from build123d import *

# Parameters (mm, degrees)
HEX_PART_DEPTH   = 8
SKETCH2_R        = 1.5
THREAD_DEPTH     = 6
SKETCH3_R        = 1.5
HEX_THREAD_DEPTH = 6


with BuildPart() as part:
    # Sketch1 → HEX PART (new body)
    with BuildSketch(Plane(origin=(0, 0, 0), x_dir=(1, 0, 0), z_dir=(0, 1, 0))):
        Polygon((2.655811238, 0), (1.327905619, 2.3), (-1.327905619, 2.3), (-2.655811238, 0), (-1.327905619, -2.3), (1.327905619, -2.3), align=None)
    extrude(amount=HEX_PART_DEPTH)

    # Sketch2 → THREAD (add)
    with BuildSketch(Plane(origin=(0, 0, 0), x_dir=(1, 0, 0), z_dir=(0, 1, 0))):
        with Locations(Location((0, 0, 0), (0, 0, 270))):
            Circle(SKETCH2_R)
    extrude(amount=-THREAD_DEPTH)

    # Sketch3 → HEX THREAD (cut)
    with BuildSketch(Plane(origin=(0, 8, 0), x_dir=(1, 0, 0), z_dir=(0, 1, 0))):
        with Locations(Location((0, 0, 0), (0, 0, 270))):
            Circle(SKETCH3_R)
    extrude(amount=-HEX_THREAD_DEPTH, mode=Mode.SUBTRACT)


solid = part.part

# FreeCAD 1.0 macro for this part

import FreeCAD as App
import Part
import Sketcher
Q = App.Units.Quantity

doc = App.newDocument("Part")
body = doc.addObject("PartDesign::Body", "Body")

sketch1 = doc.addObject("Sketcher::SketchObject", "Sketch")
body.addObject(sketch1)
sketch1.AttachmentSupport = (doc.XZ_Plane, [""])
sketch1.MapMode = "FlatFace"
sketch1.addGeometry([
    Part.LineSegment(App.Vector(2.7, 0, 0), App.Vector(1.3, -2.3, 0)),
    Part.LineSegment(App.Vector(1.3, -2.3, 0), App.Vector(-1.3, -2.3, 0)),
    Part.LineSegment(App.Vector(-1.3, -2.3, 0), App.Vector(-2.7, 0, 0)),
    Part.LineSegment(App.Vector(-2.7, 0, 0), App.Vector(-1.3, 2.3, 0)),
    Part.LineSegment(App.Vector(-1.3, 2.3, 0), App.Vector(1.3, 2.3, 0)),
    Part.LineSegment(App.Vector(1.3, 2.3, 0), App.Vector(2.7, 0, 0)),
], False)
sketch1.addConstraint([
    Sketcher.Constraint("Coincident", 0, 2, 1, 1),
    Sketcher.Constraint("Coincident", 1, 2, 2, 1),
    Sketcher.Constraint("Coincident", 2, 2, 3, 1),
    Sketcher.Constraint("Coincident", 3, 2, 4, 1),
    Sketcher.Constraint("Coincident", 4, 2, 5, 1),
    Sketcher.Constraint("Coincident", 5, 2, 0, 1),
    Sketcher.Constraint("Horizontal", 1),
    Sketcher.Constraint("Horizontal", 4),
    Sketcher.Constraint("Symmetric", 0, 2, 3, 2, -1, 1),
    Sketcher.Constraint("Symmetric", 2, 2, 5, 2, -1, 1),
    Sketcher.Constraint("PointOnObject", 2, 2, -1),
    Sketcher.Constraint("Parallel", 2, 5),
    Sketcher.Constraint("Vertical", 1, 2, 3, 2),
    Sketcher.Constraint("Angle", 0, Q("-120 deg")),
    Sketcher.Constraint("DistanceY", 0, 2, -1, 1, 2.3),
    Sketcher.Constraint("DistanceX", 1, 2, 1, 1, 2.655811),
])
pad1 = doc.addObject("PartDesign::Pad", "Pad")
body.addObject(pad1)
pad1.Profile = sketch1
pad1.Length = 8
pad1.Reversed = True

sketch2 = doc.addObject("Sketcher::SketchObject", "Sketch001")
body.addObject(sketch2)
sketch2.AttachmentSupport = (doc.XZ_Plane, [""])
sketch2.MapMode = "FlatFace"
sketch2.addGeometry(Part.Circle(App.Vector(0, 0, 0), App.Vector(0, 0, 1), 1.5), False)
sketch2.addConstraint([
    Sketcher.Constraint("Coincident", 0, 3, -1, 1),
    Sketcher.Constraint("Diameter", 0, 3.0),
])
pad2 = doc.addObject("PartDesign::Pad", "Pad001")
body.addObject(pad2)
pad2.Profile = sketch2
pad2.Length = 6

sketch3 = doc.addObject("Sketcher::SketchObject", "Sketch002")
body.addObject(sketch3)
sketch3.AttachmentSupport = (doc.XZ_Plane, [""])
sketch3.MapMode = "FlatFace"
sketch3.AttachmentOffset = App.Placement(App.Vector(0, 0, -8), App.Rotation())
sketch3.addGeometry(Part.Circle(App.Vector(0, 0, 0), App.Vector(0, 0, 1), 1.5), False)
sketch3.addConstraint([
    Sketcher.Constraint("Coincident", 0, 3, -1, 1),
    Sketcher.Constraint("Diameter", 0, 3.0),
])
pocket1 = doc.addObject("PartDesign::Pocket", "Pocket")
body.addObject(pocket1)
pocket1.Profile = sketch3
pocket1.Length = 6
pocket1.Reversed = True

doc.recompute()
